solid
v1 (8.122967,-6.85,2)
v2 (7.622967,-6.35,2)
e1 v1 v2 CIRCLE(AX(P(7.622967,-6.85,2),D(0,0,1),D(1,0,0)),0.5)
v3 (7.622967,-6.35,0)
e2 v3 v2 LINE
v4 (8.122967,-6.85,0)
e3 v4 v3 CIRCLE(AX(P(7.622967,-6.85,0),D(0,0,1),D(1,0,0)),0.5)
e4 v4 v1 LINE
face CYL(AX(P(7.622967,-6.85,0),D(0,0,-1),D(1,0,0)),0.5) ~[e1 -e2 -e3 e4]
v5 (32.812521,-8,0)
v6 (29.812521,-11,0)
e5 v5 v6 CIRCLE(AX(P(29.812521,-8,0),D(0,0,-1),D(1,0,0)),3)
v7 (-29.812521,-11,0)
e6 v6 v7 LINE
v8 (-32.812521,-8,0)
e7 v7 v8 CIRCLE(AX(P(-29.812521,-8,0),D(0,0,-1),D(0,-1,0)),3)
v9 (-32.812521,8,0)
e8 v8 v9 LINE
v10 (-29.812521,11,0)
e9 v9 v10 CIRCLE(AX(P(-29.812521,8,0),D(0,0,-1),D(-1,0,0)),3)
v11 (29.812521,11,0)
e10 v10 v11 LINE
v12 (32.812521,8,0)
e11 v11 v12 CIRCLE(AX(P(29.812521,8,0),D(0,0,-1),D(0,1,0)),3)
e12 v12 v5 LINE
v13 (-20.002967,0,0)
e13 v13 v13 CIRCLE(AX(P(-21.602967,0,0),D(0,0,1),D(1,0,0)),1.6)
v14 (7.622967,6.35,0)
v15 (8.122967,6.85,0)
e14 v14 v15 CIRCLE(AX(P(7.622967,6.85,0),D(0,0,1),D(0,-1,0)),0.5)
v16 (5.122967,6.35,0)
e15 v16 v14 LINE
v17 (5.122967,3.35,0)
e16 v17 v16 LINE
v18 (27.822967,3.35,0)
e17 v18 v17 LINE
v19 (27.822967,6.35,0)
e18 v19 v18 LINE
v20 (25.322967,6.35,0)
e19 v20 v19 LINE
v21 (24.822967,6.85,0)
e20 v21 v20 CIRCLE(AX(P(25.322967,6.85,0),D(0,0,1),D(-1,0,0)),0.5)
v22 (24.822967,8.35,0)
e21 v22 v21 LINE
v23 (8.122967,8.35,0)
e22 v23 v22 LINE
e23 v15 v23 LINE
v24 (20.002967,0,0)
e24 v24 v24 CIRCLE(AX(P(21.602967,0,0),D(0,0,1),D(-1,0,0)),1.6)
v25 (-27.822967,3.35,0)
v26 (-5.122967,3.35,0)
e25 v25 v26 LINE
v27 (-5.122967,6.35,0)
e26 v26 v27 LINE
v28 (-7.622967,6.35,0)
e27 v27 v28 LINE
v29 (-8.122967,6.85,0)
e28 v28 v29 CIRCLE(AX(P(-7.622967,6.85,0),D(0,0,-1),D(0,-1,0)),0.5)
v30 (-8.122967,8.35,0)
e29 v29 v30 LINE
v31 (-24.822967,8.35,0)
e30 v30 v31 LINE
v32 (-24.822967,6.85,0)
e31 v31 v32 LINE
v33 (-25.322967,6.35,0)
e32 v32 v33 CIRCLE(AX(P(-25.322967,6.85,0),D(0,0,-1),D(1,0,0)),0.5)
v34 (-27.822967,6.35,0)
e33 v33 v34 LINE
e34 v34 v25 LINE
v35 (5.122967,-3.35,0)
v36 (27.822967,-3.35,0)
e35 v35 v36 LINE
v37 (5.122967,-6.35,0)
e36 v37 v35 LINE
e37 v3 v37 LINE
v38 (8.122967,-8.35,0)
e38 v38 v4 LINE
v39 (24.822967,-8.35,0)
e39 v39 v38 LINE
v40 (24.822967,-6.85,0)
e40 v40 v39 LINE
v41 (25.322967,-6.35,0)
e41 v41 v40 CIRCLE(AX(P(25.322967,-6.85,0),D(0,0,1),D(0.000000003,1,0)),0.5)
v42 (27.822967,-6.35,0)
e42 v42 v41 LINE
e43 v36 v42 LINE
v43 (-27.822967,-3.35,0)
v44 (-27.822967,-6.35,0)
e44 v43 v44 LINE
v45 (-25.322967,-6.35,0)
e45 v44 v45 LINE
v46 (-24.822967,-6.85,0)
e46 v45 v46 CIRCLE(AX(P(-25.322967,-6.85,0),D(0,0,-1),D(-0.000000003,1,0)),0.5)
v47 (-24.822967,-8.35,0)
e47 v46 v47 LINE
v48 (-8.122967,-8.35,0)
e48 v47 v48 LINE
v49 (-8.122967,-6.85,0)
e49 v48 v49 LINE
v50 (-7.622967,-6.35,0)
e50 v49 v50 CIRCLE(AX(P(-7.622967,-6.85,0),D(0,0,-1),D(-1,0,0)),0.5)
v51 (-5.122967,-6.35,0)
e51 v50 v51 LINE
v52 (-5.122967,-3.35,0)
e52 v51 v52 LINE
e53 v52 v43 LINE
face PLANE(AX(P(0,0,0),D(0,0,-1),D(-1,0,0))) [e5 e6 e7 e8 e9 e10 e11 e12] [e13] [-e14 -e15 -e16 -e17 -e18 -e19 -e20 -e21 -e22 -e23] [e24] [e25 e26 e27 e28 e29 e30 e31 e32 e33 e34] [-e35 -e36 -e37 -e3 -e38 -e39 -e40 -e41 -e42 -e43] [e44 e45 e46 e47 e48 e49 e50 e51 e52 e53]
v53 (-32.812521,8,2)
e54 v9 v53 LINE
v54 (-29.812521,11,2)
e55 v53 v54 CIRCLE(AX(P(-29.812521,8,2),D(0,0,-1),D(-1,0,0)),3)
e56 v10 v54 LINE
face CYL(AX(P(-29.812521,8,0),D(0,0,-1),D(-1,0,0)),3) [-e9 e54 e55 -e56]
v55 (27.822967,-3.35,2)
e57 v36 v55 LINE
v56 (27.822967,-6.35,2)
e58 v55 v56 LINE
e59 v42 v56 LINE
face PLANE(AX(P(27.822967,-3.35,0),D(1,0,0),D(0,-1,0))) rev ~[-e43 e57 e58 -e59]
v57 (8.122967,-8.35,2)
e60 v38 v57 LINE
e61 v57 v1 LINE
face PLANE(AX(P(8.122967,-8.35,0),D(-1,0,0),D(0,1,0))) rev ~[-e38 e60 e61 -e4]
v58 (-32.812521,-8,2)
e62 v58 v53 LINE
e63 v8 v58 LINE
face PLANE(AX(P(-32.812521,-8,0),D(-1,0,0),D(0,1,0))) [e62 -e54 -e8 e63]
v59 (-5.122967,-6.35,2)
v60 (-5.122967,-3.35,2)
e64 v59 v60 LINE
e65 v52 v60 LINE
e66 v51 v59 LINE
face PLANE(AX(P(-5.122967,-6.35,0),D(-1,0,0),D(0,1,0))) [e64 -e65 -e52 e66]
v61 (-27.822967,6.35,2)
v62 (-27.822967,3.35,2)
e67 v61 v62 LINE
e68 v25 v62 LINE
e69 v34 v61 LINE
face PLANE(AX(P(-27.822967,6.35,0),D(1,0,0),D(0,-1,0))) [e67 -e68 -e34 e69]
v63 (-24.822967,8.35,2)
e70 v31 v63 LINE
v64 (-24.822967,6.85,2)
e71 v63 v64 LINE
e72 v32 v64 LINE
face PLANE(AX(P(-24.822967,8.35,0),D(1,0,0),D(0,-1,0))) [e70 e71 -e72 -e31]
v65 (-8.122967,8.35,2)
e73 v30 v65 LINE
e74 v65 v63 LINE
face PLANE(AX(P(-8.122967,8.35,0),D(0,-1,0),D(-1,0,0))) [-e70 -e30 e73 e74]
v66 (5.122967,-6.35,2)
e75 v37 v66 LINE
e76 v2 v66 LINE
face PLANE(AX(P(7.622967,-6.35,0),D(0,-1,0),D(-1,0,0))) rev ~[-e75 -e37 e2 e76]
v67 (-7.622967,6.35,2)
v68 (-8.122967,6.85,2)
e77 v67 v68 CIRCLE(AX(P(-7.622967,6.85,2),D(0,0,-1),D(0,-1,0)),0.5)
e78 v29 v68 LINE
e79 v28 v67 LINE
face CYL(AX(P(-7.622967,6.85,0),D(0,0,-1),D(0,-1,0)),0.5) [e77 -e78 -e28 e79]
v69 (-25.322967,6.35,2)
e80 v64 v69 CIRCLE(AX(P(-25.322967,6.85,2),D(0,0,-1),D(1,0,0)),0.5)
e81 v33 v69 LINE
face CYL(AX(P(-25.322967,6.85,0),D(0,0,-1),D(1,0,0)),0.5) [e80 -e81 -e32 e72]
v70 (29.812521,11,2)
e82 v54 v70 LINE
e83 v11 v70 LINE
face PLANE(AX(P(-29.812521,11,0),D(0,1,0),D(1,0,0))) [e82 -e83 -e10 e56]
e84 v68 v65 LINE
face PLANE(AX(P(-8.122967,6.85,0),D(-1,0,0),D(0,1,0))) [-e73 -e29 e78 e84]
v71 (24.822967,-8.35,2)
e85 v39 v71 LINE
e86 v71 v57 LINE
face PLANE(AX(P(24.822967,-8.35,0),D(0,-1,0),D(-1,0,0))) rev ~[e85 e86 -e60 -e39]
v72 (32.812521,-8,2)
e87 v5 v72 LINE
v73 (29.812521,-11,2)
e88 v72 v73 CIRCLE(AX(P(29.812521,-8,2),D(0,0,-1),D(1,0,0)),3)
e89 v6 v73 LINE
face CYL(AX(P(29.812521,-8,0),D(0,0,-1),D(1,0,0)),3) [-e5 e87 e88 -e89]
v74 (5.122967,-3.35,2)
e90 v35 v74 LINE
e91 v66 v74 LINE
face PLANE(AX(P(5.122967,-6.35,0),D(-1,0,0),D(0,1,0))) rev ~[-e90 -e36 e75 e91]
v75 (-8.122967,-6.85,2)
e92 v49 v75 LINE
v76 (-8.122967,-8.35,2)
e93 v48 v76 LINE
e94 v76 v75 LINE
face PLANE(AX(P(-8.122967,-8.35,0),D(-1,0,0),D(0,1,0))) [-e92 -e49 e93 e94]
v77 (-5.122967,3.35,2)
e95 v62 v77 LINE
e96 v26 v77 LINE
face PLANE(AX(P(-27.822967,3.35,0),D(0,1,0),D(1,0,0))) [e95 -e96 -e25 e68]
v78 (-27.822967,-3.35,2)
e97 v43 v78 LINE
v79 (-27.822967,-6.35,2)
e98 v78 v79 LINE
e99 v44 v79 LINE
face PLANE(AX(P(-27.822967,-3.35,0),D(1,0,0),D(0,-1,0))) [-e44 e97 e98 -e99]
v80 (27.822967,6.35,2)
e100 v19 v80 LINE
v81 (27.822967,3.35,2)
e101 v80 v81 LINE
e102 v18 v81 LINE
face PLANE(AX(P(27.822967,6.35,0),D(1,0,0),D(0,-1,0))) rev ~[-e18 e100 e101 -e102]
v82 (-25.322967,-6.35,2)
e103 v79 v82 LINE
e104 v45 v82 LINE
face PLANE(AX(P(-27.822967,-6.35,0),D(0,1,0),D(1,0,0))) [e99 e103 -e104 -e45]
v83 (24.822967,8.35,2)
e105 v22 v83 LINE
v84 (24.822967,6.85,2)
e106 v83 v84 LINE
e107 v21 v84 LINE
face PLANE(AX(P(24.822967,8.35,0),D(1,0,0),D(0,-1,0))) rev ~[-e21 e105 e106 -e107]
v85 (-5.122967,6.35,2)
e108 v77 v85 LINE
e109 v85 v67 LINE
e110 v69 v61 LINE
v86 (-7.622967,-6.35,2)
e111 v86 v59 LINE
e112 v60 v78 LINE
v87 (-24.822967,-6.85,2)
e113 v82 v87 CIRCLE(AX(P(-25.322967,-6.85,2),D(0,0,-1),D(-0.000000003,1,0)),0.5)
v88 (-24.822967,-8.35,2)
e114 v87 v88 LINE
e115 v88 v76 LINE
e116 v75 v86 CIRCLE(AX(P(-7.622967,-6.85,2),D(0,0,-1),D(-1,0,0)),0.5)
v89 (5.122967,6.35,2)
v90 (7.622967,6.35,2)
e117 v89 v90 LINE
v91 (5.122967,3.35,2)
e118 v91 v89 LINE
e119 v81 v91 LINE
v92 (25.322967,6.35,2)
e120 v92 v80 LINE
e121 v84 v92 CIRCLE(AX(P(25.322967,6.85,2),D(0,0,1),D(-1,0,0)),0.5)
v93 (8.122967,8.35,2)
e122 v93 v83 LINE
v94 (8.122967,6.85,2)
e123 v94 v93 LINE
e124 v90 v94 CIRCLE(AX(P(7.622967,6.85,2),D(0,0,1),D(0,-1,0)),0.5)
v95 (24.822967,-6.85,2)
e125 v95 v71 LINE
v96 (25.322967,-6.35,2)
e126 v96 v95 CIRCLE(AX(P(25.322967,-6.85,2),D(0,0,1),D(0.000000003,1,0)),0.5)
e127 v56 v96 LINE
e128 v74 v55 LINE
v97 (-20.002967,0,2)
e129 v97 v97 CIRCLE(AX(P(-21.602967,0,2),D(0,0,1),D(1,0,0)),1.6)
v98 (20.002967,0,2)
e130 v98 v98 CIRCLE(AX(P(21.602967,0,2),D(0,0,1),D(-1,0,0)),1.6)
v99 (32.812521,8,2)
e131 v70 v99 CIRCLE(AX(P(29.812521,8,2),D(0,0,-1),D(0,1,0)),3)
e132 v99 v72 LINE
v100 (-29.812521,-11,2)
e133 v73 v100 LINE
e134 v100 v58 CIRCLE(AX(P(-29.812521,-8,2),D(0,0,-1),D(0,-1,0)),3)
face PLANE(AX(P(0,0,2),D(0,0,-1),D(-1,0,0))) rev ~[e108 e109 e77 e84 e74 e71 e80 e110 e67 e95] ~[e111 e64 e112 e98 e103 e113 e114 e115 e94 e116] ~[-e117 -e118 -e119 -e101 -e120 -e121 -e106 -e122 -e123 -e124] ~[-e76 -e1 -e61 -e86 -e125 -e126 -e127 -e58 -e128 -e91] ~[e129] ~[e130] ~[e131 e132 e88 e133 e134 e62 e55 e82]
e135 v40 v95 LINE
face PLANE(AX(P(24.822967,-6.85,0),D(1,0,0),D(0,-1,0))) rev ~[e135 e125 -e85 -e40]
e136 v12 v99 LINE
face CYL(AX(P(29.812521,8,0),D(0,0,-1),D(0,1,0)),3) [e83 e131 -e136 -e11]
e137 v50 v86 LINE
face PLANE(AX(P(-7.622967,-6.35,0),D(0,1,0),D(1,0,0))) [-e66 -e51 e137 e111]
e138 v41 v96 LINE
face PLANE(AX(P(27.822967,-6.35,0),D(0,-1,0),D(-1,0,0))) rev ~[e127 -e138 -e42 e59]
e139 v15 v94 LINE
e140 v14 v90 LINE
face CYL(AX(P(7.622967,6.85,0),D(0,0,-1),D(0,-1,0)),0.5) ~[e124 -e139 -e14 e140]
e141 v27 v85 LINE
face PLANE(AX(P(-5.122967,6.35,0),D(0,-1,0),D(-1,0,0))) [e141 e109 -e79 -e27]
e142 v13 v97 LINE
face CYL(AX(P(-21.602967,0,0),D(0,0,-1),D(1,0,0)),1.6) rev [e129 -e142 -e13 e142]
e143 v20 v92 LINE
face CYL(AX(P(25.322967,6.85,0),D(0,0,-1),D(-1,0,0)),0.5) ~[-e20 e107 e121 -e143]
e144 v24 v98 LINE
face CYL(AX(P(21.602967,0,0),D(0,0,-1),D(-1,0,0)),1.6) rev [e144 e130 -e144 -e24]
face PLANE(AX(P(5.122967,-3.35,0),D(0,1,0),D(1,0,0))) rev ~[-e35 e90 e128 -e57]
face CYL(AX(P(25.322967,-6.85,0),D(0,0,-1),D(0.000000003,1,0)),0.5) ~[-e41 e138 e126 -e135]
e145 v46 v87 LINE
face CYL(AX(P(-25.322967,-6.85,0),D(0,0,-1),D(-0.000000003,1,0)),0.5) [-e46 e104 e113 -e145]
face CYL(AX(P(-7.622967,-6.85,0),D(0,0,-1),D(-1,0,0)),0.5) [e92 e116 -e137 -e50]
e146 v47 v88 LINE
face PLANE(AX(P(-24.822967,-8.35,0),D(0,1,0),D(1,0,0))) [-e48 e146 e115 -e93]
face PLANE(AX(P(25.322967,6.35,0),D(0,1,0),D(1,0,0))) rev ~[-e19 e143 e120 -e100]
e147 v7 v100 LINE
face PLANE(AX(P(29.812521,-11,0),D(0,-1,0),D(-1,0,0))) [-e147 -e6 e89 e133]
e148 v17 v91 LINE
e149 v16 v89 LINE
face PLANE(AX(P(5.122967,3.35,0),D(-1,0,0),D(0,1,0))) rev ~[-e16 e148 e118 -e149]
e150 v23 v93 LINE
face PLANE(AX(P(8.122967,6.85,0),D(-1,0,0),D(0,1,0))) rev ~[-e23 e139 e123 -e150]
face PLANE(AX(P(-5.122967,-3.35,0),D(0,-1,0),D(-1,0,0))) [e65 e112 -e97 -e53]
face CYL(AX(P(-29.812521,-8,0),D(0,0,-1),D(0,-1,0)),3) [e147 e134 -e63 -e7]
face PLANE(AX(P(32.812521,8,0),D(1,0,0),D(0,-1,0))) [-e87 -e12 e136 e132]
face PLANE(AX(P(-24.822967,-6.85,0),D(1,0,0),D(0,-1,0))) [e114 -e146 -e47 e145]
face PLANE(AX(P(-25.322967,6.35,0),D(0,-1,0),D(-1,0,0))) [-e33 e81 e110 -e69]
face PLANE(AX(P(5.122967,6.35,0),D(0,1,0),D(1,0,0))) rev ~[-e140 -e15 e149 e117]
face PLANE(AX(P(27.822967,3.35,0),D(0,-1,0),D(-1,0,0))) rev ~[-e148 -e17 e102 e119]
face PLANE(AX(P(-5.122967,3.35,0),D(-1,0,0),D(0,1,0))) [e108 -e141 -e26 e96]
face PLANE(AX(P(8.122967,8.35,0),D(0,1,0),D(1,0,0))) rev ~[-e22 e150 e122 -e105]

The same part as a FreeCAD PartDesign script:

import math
import FreeCAD as App
import Part
import Sketcher
Q = App.Units.Quantity

doc = App.newDocument("Part")
body = doc.addObject("PartDesign::Body", "Body")

sketch1 = body.newObject("Sketcher::SketchObject", "Sketch")
sketch1.AttachmentSupport = (doc.getObject("XY_Plane"), [""])
sketch1.MapMode = "FlatFace"
sketch1.addGeometry([
    Part.LineSegment(App.Vector(29.81, 11, 0), App.Vector(-29.81, 11, 0)),
    Part.ArcOfCircle(Part.Circle(App.Vector(-29.81, 8, 0), App.Vector(0, 0, 1), 3), math.radians(90), math.radians(180)),
    Part.LineSegment(App.Vector(-32.81, 8, 0), App.Vector(-32.81, -8, 0)),
    Part.ArcOfCircle(Part.Circle(App.Vector(-29.81, -8, 0), App.Vector(0, 0, 1), 3), math.radians(180), math.radians(270)),
    Part.LineSegment(App.Vector(-29.81, -11, 0), App.Vector(29.81, -11, 0)),
    Part.ArcOfCircle(Part.Circle(App.Vector(29.81, -8, 0), App.Vector(0, 0, 1), 3), math.radians(-90), math.radians(0)),
    Part.LineSegment(App.Vector(32.81, -8, 0), App.Vector(32.81, 8, 0)),
    Part.ArcOfCircle(Part.Circle(App.Vector(29.81, 8, 0), App.Vector(0, 0, 1), 3), math.radians(0), math.radians(90)),
    Part.LineSegment(App.Vector(24.82, -6.85, 0), App.Vector(24.82, -8.35, 0)),
    Part.LineSegment(App.Vector(24.82, -8.35, 0), App.Vector(8.12, -8.35, 0)),
    Part.LineSegment(App.Vector(8.12, -8.35, 0), App.Vector(8.12, -6.85, 0)),
    Part.ArcOfCircle(Part.Circle(App.Vector(7.62, -6.85, 0), App.Vector(0, 0, 1), 0.5), math.radians(0), math.radians(90)),
    Part.LineSegment(App.Vector(7.62, -6.35, 0), App.Vector(5.12, -6.35, 0)),
    Part.LineSegment(App.Vector(5.12, -6.35, 0), App.Vector(5.12, -3.35, 0)),
    Part.LineSegment(App.Vector(5.12, -3.35, 0), App.Vector(27.82, -3.35, 0)),
    Part.LineSegment(App.Vector(27.82, -3.35, 0), App.Vector(27.82, -6.35, 0)),
    Part.LineSegment(App.Vector(27.82, -6.35, 0), App.Vector(25.32, -6.35, 0)),
    Part.ArcOfCircle(Part.Circle(App.Vector(25.32, -6.85, 0), App.Vector(0, 0, 1), 0.5), math.radians(90), math.radians(180)),
    Part.Circle(App.Vector(21.6, 0, 0), App.Vector(0, 0, 1), 1.6),
    Part.LineSegment(App.Vector(-27.82, -6.35, 0), App.Vector(-27.82, -3.35, 0)),
    Part.LineSegment(App.Vector(-27.82, -3.35, 0), App.Vector(-5.12, -3.35, 0)),
    Part.LineSegment(App.Vector(-5.12, -3.35, 0), App.Vector(-5.12, -6.35, 0)),
    Part.LineSegment(App.Vector(-5.12, -6.35, 0), App.Vector(-7.62, -6.35, 0)),
    Part.ArcOfCircle(Part.Circle(App.Vector(-7.62, -6.85, 0), App.Vector(0, 0, 1), 0.5), math.radians(90), math.radians(180)),
    Part.LineSegment(App.Vector(-8.12, -6.85, 0), App.Vector(-8.12, -8.35, 0)),
    Part.LineSegment(App.Vector(-8.12, -8.35, 0), App.Vector(-24.82, -8.35, 0)),
    Part.LineSegment(App.Vector(-24.82, -8.35, 0), App.Vector(-24.82, -6.85, 0)),
    Part.ArcOfCircle(Part.Circle(App.Vector(-25.32, -6.85, 0), App.Vector(0, 0, 1), 0.5), math.radians(0), math.radians(90)),
    Part.LineSegment(App.Vector(-25.32, -6.35, 0), App.Vector(-27.82, -6.35, 0)),
    Part.Circle(App.Vector(-21.6, 0, 0), App.Vector(0, 0, 1), 1.6),
    Part.LineSegment(App.Vector(24.82, 8.35, 0), App.Vector(24.82, 6.85, 0)),
    Part.ArcOfCircle(Part.Circle(App.Vector(25.32, 6.85, 0), App.Vector(0, 0, 1), 0.5), math.radians(180), math.radians(270)),
    Part.LineSegment(App.Vector(25.32, 6.35, 0), App.Vector(27.82, 6.35, 0)),
    Part.LineSegment(App.Vector(27.82, 6.35, 0), App.Vector(27.82, 3.35, 0)),
    Part.LineSegment(App.Vector(27.82, 3.35, 0), App.Vector(5.12, 3.35, 0)),
    Part.LineSegment(App.Vector(5.12, 3.35, 0), App.Vector(5.12, 6.35, 0)),
    Part.LineSegment(App.Vector(5.12, 6.35, 0), App.Vector(7.62, 6.35, 0)),
    Part.ArcOfCircle(Part.Circle(App.Vector(7.62, 6.85, 0), App.Vector(0, 0, 1), 0.5), math.radians(-90), math.radians(0)),
    Part.LineSegment(App.Vector(8.12, 6.85, 0), App.Vector(8.12, 8.35, 0)),
    Part.LineSegment(App.Vector(8.12, 8.35, 0), App.Vector(24.82, 8.35, 0)),
    Part.LineSegment(App.Vector(-8.12, 8.35, 0), App.Vector(-8.12, 6.85, 0)),
    Part.ArcOfCircle(Part.Circle(App.Vector(-7.62, 6.85, 0), App.Vector(0, 0, 1), 0.5), math.radians(180), math.radians(270)),
    Part.LineSegment(App.Vector(-7.62, 6.35, 0), App.Vector(-5.12, 6.35, 0)),
    Part.LineSegment(App.Vector(-5.12, 6.35, 0), App.Vector(-5.12, 3.35, 0)),
    Part.LineSegment(App.Vector(-5.12, 3.35, 0), App.Vector(-27.82, 3.35, 0)),
    Part.LineSegment(App.Vector(-27.82, 3.35, 0), App.Vector(-27.82, 6.35, 0)),
    Part.LineSegment(App.Vector(-27.82, 6.35, 0), App.Vector(-25.32, 6.35, 0)),
    Part.ArcOfCircle(Part.Circle(App.Vector(-25.32, 6.85, 0), App.Vector(0, 0, 1), 0.5), math.radians(-90), math.radians(0)),
    Part.LineSegment(App.Vector(-24.82, 6.85, 0), App.Vector(-24.82, 8.35, 0)),
    Part.LineSegment(App.Vector(-24.82, 8.35, 0), App.Vector(-8.12, 8.35, 0)),
], False)
sketch1.addConstraint([
    Sketcher.Constraint("Tangent", 0, 2, 1, 1),
    Sketcher.Constraint("Tangent", 1, 2, 2, 1),
    Sketcher.Constraint("Tangent", 2, 2, 3, 1),
    Sketcher.Constraint("Tangent", 3, 2, 4, 1),
    Sketcher.Constraint("Tangent", 4, 2, 5, 1),
    Sketcher.Constraint("Tangent", 5, 2, 6, 1),
    Sketcher.Constraint("Tangent", 6, 2, 7, 1),
    Sketcher.Constraint("Tangent", 7, 2, 0, 1),
    Sketcher.Constraint("Coincident", 8, 2, 9, 1),
    Sketcher.Constraint("Coincident", 9, 2, 10, 1),
    Sketcher.Constraint("Tangent", 10, 2, 11, 1),
    Sketcher.Constraint("Tangent", 11, 2, 12, 1),
    Sketcher.Constraint("Coincident", 12, 2, 13, 1),
    Sketcher.Constraint("Coincident", 13, 2, 14, 1),
    Sketcher.Constraint("Coincident", 14, 2, 15, 1),
    Sketcher.Constraint("Coincident", 15, 2, 16, 1),
    Sketcher.Constraint("Tangent", 16, 2, 17, 1),
    Sketcher.Constraint("Tangent", 17, 2, 8, 1),
    Sketcher.Constraint("Coincident", 19, 2, 20, 1),
    Sketcher.Constraint("Coincident", 20, 2, 21, 1),
    Sketcher.Constraint("Coincident", 21, 2, 22, 1),
    Sketcher.Constraint("Tangent", 22, 2, 23, 1),
    Sketcher.Constraint("Tangent", 23, 2, 24, 1),
    Sketcher.Constraint("Coincident", 24, 2, 25, 1),
    Sketcher.Constraint("Coincident", 25, 2, 26, 1),
    Sketcher.Constraint("Tangent", 26, 2, 27, 1),
    Sketcher.Constraint("Tangent", 27, 2, 28, 1),
    Sketcher.Constraint("Coincident", 28, 2, 19, 1),
    Sketcher.Constraint("Tangent", 30, 2, 31, 1),
    Sketcher.Constraint("Tangent", 31, 2, 32, 1),
    Sketcher.Constraint("Coincident", 32, 2, 33, 1),
    Sketcher.Constraint("Coincident", 33, 2, 34, 1),
    Sketcher.Constraint("Coincident", 34, 2, 35, 1),
    Sketcher.Constraint("Coincident", 35, 2, 36, 1),
    Sketcher.Constraint("Tangent", 36, 2, 37, 1),
    Sketcher.Constraint("Tangent", 37, 2, 38, 1),
    Sketcher.Constraint("Coincident", 38, 2, 39, 1),
    Sketcher.Constraint("Coincident", 39, 2, 30, 1),
    Sketcher.Constraint("Tangent", 40, 2, 41, 1),
    Sketcher.Constraint("Tangent", 41, 2, 42, 1),
    Sketcher.Constraint("Coincident", 42, 2, 43, 1),
    Sketcher.Constraint("Coincident", 43, 2, 44, 1),
    Sketcher.Constraint("Coincident", 44, 2, 45, 1),
    Sketcher.Constraint("Coincident", 45, 2, 46, 1),
    Sketcher.Constraint("Tangent", 46, 2, 47, 1),
    Sketcher.Constraint("Tangent", 47, 2, 48, 1),
    Sketcher.Constraint("Coincident", 48, 2, 49, 1),
    Sketcher.Constraint("Coincident", 49, 2, 40, 1),
    Sketcher.Constraint("Horizontal", 0),
    Sketcher.Constraint("Vertical", 2),
    Sketcher.Constraint("Horizontal", 4),
    Sketcher.Constraint("Vertical", 6),
    Sketcher.Constraint("Vertical", 8),
    Sketcher.Constraint("Horizontal", 9),
    Sketcher.Constraint("Vertical", 10),
    Sketcher.Constraint("Horizontal", 12),
    Sketcher.Constraint("Vertical", 13),
    Sketcher.Constraint("Horizontal", 14),
    Sketcher.Constraint("Vertical", 15),
    Sketcher.Constraint("Horizontal", 16),
    Sketcher.Constraint("Vertical", 19),
    Sketcher.Constraint("Horizontal", 20),
    Sketcher.Constraint("Vertical", 21),
    Sketcher.Constraint("Horizontal", 22),
    Sketcher.Constraint("Vertical", 24),
    Sketcher.Constraint("Horizontal", 25),
    Sketcher.Constraint("Vertical", 26),
    Sketcher.Constraint("Horizontal", 28),
    Sketcher.Constraint("Vertical", 30),
    Sketcher.Constraint("Horizontal", 32),
    Sketcher.Constraint("Vertical", 33),
    Sketcher.Constraint("Horizontal", 34),
    Sketcher.Constraint("Vertical", 35),
    Sketcher.Constraint("Horizontal", 36),
    Sketcher.Constraint("Vertical", 38),
    Sketcher.Constraint("Horizontal", 39),
    Sketcher.Constraint("Vertical", 40),
    Sketcher.Constraint("Horizontal", 42),
    Sketcher.Constraint("Vertical", 43),
    Sketcher.Constraint("Horizontal", 44),
    Sketcher.Constraint("Vertical", 45),
    Sketcher.Constraint("Horizontal", 46),
    Sketcher.Constraint("Vertical", 48),
    Sketcher.Constraint("Horizontal", 49),
    Sketcher.Constraint("Equal", 1, 3),
    Sketcher.Constraint("Equal", 3, 5),
    Sketcher.Constraint("Equal", 5, 7),
    Sketcher.Constraint("Equal", 11, 17),
    Sketcher.Constraint("Equal", 17, 23),
    Sketcher.Constraint("Equal", 23, 27),
    Sketcher.Constraint("Equal", 18, 29),
    Sketcher.Constraint("Equal", 27, 31),
    Sketcher.Constraint("Equal", 31, 37),
    Sketcher.Constraint("Equal", 37, 41),
    Sketcher.Constraint("Equal", 41, 47),
    Sketcher.Constraint("Symmetric", 1, 3, 5, 3, -1, 1),
    Sketcher.Constraint("Symmetric", 18, 3, 29, 3, -1, 1),
    Sketcher.Constraint("Symmetric", 27, 3, 31, 3, -1, 1),
    Sketcher.Constraint("Symmetric", 23, 3, 37, 3, -1, 1),
    Sketcher.Constraint("Symmetric", 11, 3, 41, 3, -1, 1),
    Sketcher.Constraint("Symmetric", 17, 3, 47, 3, -1, 1),
    Sketcher.Constraint("Symmetric", 19, 2, 33, 2, -1, 1),
    Sketcher.Constraint("Symmetric", 13, 2, 43, 2, -1, 1),
    Sketcher.Constraint("Symmetric", 11, 3, 23, 3, -2),
    Sketcher.Constraint("Symmetric", 17, 3, 27, 3, -2),
    Sketcher.Constraint("Symmetric", 14, 2, 19, 2, -2),
    Sketcher.Constraint("PointOnObject", 18, 3, -1),
    Sketcher.Constraint("Horizontal", 11, 3, 17, 3),
    Sketcher.Constraint("Horizontal", 9, 2, 24, 2),
    Sketcher.Constraint("Horizontal", 39, 2, 48, 2),
    Sketcher.Constraint("Vertical", 13, 2, 34, 2),
    Sketcher.Constraint("Vertical", 21, 2, 42, 2),
    Sketcher.Constraint("Vertical", 28, 2, 44, 2),
    Sketcher.Constraint("Equal", 12, 16),
    Sketcher.Constraint("Equal", 26, 30),
    Sketcher.Constraint("Radius", 1, Q("3 mm")),
    Sketcher.Constraint("Diameter", 18, Q("3.2 mm")),
    Sketcher.Constraint("Radius", 11, Q("0.5 mm")),
    Sketcher.Constraint("DistanceY", 2, 2, 2, 1, Q("16 mm")),
    Sketcher.Constraint("DistanceY", 13, 1, 13, 2, Q("3 mm")),
    Sketcher.Constraint("DistanceX", 9, 2, 9, 1, Q("16.7 mm")),
    Sketcher.Constraint("DistanceX", 12, 2, 12, 1, Q("2.5 mm")),
    Sketcher.Constraint("DistanceY", 8, 2, 8, 1, Q("1.5 mm")),
    Sketcher.Constraint("DistanceY", 11, 3, -1, 1, Q("6.85 mm")),
    Sketcher.Constraint("DistanceX", 0, 2, 0, 1, Q("59.625041 mm")),
    Sketcher.Constraint("DistanceX", -1, 1, 11, 3, Q("7.622967 mm")),
    Sketcher.Constraint("DistanceX", -1, 1, 18, 3, Q("21.602967 mm")),
])
pad1 = body.newObject("PartDesign::Pad", "Pad")
pad1.Profile = sketch1
pad1.Length = 2

doc.recompute()
